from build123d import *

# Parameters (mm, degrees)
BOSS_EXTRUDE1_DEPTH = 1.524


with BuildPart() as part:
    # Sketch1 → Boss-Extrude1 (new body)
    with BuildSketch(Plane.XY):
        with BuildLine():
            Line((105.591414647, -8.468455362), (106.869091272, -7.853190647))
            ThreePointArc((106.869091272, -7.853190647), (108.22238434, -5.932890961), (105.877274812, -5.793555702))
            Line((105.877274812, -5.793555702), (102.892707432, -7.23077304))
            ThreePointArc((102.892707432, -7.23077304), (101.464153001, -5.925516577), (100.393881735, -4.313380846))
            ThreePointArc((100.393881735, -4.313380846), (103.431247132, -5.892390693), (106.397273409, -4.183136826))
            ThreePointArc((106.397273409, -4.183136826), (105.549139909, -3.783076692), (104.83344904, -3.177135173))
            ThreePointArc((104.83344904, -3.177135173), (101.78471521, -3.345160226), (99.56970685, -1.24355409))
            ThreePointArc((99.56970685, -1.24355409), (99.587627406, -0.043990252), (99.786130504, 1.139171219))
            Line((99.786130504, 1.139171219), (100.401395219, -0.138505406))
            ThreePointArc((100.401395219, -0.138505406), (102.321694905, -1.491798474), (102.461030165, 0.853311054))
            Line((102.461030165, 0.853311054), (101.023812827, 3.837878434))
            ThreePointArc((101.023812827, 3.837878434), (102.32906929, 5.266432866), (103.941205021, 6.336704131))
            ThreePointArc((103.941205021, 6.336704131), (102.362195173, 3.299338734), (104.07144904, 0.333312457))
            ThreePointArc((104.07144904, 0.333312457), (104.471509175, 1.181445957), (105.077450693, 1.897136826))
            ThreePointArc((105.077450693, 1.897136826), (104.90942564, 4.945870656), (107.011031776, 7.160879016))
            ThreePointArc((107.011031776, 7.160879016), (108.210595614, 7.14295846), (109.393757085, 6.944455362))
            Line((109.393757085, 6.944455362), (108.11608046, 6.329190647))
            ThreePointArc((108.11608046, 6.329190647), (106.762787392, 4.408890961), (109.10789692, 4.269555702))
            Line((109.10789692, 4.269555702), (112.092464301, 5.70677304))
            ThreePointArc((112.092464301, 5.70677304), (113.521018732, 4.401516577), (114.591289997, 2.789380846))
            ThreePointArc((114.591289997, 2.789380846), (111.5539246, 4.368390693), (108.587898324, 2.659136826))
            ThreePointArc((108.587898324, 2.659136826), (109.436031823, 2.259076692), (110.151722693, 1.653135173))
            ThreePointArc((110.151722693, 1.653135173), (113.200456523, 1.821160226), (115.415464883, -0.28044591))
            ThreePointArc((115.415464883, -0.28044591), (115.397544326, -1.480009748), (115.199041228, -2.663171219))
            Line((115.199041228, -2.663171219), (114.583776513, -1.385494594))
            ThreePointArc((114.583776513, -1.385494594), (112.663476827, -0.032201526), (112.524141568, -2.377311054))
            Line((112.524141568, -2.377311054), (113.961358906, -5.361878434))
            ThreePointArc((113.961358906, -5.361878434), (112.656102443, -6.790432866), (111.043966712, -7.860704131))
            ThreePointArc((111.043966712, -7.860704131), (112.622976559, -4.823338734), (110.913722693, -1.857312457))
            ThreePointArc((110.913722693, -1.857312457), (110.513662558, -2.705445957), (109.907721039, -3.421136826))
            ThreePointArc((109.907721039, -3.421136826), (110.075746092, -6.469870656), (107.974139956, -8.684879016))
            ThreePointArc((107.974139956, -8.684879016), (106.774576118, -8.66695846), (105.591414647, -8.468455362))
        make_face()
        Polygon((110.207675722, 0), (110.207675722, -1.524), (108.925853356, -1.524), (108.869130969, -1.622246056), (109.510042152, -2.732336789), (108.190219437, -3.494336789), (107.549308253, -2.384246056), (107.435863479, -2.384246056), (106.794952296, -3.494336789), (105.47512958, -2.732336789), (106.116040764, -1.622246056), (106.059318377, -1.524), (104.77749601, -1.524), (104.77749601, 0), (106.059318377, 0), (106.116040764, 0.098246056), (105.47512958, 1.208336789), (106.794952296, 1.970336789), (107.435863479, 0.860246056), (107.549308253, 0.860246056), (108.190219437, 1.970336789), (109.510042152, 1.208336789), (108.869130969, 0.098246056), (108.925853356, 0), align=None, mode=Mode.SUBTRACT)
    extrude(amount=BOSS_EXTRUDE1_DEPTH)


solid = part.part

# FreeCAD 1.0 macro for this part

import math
import FreeCAD as App
import Part
import Sketcher
from FreeCAD import Vector
Q = App.Units.Quantity

doc = App.newDocument("Part")
params = doc.addObject("Spreadsheet::Sheet", "Params")
for row, (alias, value) in enumerate([
    ("sketch1_radius", "0.3125 in"),
    ("sketch1_height", "0.06 in"),
    ("sketch1_length", "0.06 in"),
    ("pad1_length", "0.06 in"),
], start=1):
    params.set(f"A{row}", alias)
    params.set(f"B{row}", "=" + value)
    params.setAlias(f"B{row}", alias)

body = doc.addObject("PartDesign::Body", "Body")

sketch1 = doc.addObject("Sketcher::SketchObject", "Sketch")
body.addObject(sketch1)
sketch1.AttachmentSupport = (doc.XY_Plane, [""])
sketch1.MapMode = "FlatFace"
sketch1.addGeometry([
    Part.LineSegment(Vector(106.87, -7.85, 0), Vector(105.59, -8.47, 0)),
    Part.ArcOfCircle(Part.Circle(Vector(107.49, -0.76, 0), Vector(0, 0, 1), 7.94), math.radians(-103.86), math.radians(-86.52)),
    Part.ArcOfCircle(Part.Circle(Vector(106.46, -5.14, 0), Vector(0, 0, 1), 3.86), math.radians(-67), math.radians(26)),
    Part.ArcOfCircle(Part.Circle(Vector(107.49, -0.76, 0), Vector(0, 0, 1), 3.59), math.radians(-48), math.radians(-18)),
    Part.ArcOfCircle(Part.Circle(Vector(109.06, -4.9, 0), Vector(0, 0, 1), 3.56), math.radians(-56), math.radians(59)),
    Part.ArcOfCircle(Part.Circle(Vector(107.49, -0.76, 0), Vector(0, 0, 1), 7.94), math.radians(-63), math.radians(-35)),
    Part.LineSegment(Vector(113.96, -5.36, 0), Vector(112.52, -2.38, 0)),
    Part.ArcOfCircle(Part.Circle(Vector(113.25, -1.24, 0), Vector(0, 0, 1), 1.34), math.radians(-6), math.radians(237)),
    Part.LineSegment(Vector(114.58, -1.39, 0), Vector(115.2, -2.66, 0)),
    Part.ArcOfCircle(Part.Circle(Vector(107.49, -0.76, 0), Vector(0, 0, 1), 7.94), math.radians(-13.86), math.radians(3.48)),
    Part.ArcOfCircle(Part.Circle(Vector(111.87, -1.8, 0), Vector(0, 0, 1), 3.86), math.radians(23), math.radians(116)),
    Part.ArcOfCircle(Part.Circle(Vector(107.49, -0.76, 0), Vector(0, 0, 1), 3.59), math.radians(42), math.radians(72)),
    Part.ArcOfCircle(Part.Circle(Vector(111.63, 0.81, 0), Vector(0, 0, 1), 3.56), math.radians(34), math.radians(149)),
    Part.ArcOfCircle(Part.Circle(Vector(107.49, -0.76, 0), Vector(0, 0, 1), 7.94), math.radians(27), math.radians(55)),
    Part.LineSegment(Vector(112.09, 5.71, 0), Vector(109.11, 4.27, 0)),
    Part.ArcOfCircle(Part.Circle(Vector(107.97, 4.99, 0), Vector(0, 0, 1), 1.34), math.radians(84), math.radians(327)),
    Part.LineSegment(Vector(108.12, 6.33, 0), Vector(109.39, 6.94, 0)),
    Part.ArcOfCircle(Part.Circle(Vector(107.49, -0.76, 0), Vector(0, 0, 1), 7.94), math.radians(76.14), math.radians(93.48)),
    Part.ArcOfCircle(Part.Circle(Vector(108.53, 3.62, 0), Vector(0, 0, 1), 3.86), math.radians(113), math.radians(206)),
    Part.ArcOfCircle(Part.Circle(Vector(107.49, -0.76, 0), Vector(0, 0, 1), 3.59), math.radians(132), math.radians(162)),
    Part.ArcOfCircle(Part.Circle(Vector(105.92, 3.38, 0), Vector(0, 0, 1), 3.56), math.radians(124), math.radians(239)),
    Part.ArcOfCircle(Part.Circle(Vector(107.49, -0.76, 0), Vector(0, 0, 1), 7.94), math.radians(117), math.radians(145)),
    Part.LineSegment(Vector(101.02, 3.84, 0), Vector(102.46, 0.85, 0)),
    Part.ArcOfCircle(Part.Circle(Vector(101.74, -0.28, 0), Vector(0, 0, 1), 1.34), math.radians(174), math.radians(417)),
    Part.LineSegment(Vector(100.4, -0.14, 0), Vector(99.79, 1.14, 0)),
    Part.ArcOfCircle(Part.Circle(Vector(107.49, -0.76, 0), Vector(0, 0, 1), 7.94), math.radians(166.14), math.radians(183.48)),
    Part.ArcOfCircle(Part.Circle(Vector(103.11, 0.27, 0), Vector(0, 0, 1), 3.86), math.radians(-157), math.radians(-64)),
    Part.ArcOfCircle(Part.Circle(Vector(107.49, -0.76, 0), Vector(0, 0, 1), 3.59), math.radians(-138), math.radians(-108)),
    Part.ArcOfCircle(Part.Circle(Vector(103.35, -2.33, 0), Vector(0, 0, 1), 3.56), math.radians(-146), math.radians(-31)),
    Part.ArcOfCircle(Part.Circle(Vector(107.49, -0.76, 0), Vector(0, 0, 1), 7.94), math.radians(-153), math.radians(-125)),
    Part.LineSegment(Vector(102.89, -7.23, 0), Vector(105.88, -5.79, 0)),
    Part.ArcOfCircle(Part.Circle(Vector(107.01, -6.52, 0), Vector(0, 0, 1), 1.34), math.radians(-96), math.radians(147)),
    Part.LineSegment(Vector(110.21, 0, 0), Vector(110.21, -1.52, 0)),
    Part.LineSegment(Vector(110.21, -1.52, 0), Vector(108.93, -1.52, 0)),
    Part.LineSegment(Vector(108.93, -1.52, 0), Vector(108.87, -1.62, 0)),
    Part.LineSegment(Vector(108.87, -1.62, 0), Vector(109.51, -2.73, 0)),
    Part.LineSegment(Vector(109.51, -2.73, 0), Vector(108.19, -3.49, 0)),
    Part.LineSegment(Vector(108.19, -3.49, 0), Vector(107.55, -2.38, 0)),
    Part.LineSegment(Vector(107.55, -2.38, 0), Vector(107.44, -2.38, 0)),
    Part.LineSegment(Vector(107.44, -2.38, 0), Vector(106.79, -3.49, 0)),
    Part.LineSegment(Vector(106.79, -3.49, 0), Vector(105.48, -2.73, 0)),
    Part.LineSegment(Vector(105.48, -2.73, 0), Vector(106.12, -1.62, 0)),
    Part.LineSegment(Vector(106.12, -1.62, 0), Vector(106.06, -1.52, 0)),
    Part.LineSegment(Vector(106.06, -1.52, 0), Vector(104.78, -1.52, 0)),
    Part.LineSegment(Vector(104.78, -1.52, 0), Vector(104.78, 0, 0)),
    Part.LineSegment(Vector(104.78, 0, 0), Vector(106.06, 0, 0)),
    Part.LineSegment(Vector(106.06, 0, 0), Vector(106.12, 0.1, 0)),
    Part.LineSegment(Vector(106.12, 0.1, 0), Vector(105.48, 1.21, 0)),
    Part.LineSegment(Vector(105.48, 1.21, 0), Vector(106.79, 1.97, 0)),
    Part.LineSegment(Vector(106.79, 1.97, 0), Vector(107.44, 0.86, 0)),
    Part.LineSegment(Vector(107.44, 0.86, 0), Vector(107.55, 0.86, 0)),
    Part.LineSegment(Vector(107.55, 0.86, 0), Vector(108.19, 1.97, 0)),
    Part.LineSegment(Vector(108.19, 1.97, 0), Vector(109.51, 1.21, 0)),
    Part.LineSegment(Vector(109.51, 1.21, 0), Vector(108.87, 0.1, 0)),
    Part.LineSegment(Vector(108.87, 0.1, 0), Vector(108.93, 0, 0)),
    Part.LineSegment(Vector(108.93, 0, 0), Vector(110.21, 0, 0)),
], False)
sketch1.addConstraint([
    Sketcher.Constraint("Coincident", 0, 2, 1, 1),
    Sketcher.Constraint("Coincident", 1, 2, 2, 1),
    Sketcher.Constraint("Coincident", 2, 2, 3, 1),
    Sketcher.Constraint("Coincident", 3, 2, 4, 2),
    Sketcher.Constraint("Coincident", 4, 1, 5, 1),
    Sketcher.Constraint("Coincident", 5, 2, 6, 1),
    Sketcher.Constraint("Coincident", 6, 2, 7, 2),
    Sketcher.Constraint("Coincident", 7, 1, 8, 1),
    Sketcher.Constraint("Coincident", 8, 2, 9, 1),
    Sketcher.Constraint("Coincident", 9, 2, 10, 1),
    Sketcher.Constraint("Coincident", 10, 2, 11, 1),
    Sketcher.Constraint("Coincident", 11, 2, 12, 2),
    Sketcher.Constraint("Coincident", 12, 1, 13, 1),
    Sketcher.Constraint("Coincident", 13, 2, 14, 1),
    Sketcher.Constraint("Coincident", 14, 2, 15, 2),
    Sketcher.Constraint("Coincident", 15, 1, 16, 1),
    Sketcher.Constraint("Coincident", 16, 2, 17, 1),
    Sketcher.Constraint("Coincident", 17, 2, 18, 1),
    Sketcher.Constraint("Coincident", 18, 2, 19, 1),
    Sketcher.Constraint("Coincident", 19, 2, 20, 2),
    Sketcher.Constraint("Coincident", 20, 1, 21, 1),
    Sketcher.Constraint("Coincident", 21, 2, 22, 1),
    Sketcher.Constraint("Coincident", 22, 2, 23, 2),
    Sketcher.Constraint("Coincident", 23, 1, 24, 1),
    Sketcher.Constraint("Coincident", 24, 2, 25, 1),
    Sketcher.Constraint("Coincident", 25, 2, 26, 1),
    Sketcher.Constraint("Coincident", 26, 2, 27, 1),
    Sketcher.Constraint("Coincident", 27, 2, 28, 2),
    Sketcher.Constraint("Coincident", 28, 1, 29, 1),
    Sketcher.Constraint("Coincident", 29, 2, 30, 1),
    Sketcher.Constraint("Coincident", 30, 2, 31, 2),
    Sketcher.Constraint("Coincident", 31, 1, 0, 1),
    Sketcher.Constraint("Coincident", 32, 2, 33, 1),
    Sketcher.Constraint("Coincident", 33, 2, 34, 1),
    Sketcher.Constraint("Coincident", 34, 2, 35, 1),
    Sketcher.Constraint("Coincident", 35, 2, 36, 1),
    Sketcher.Constraint("Coincident", 36, 2, 37, 1),
    Sketcher.Constraint("Coincident", 37, 2, 38, 1),
    Sketcher.Constraint("Coincident", 38, 2, 39, 1),
    Sketcher.Constraint("Coincident", 39, 2, 40, 1),
    Sketcher.Constraint("Coincident", 40, 2, 41, 1),
    Sketcher.Constraint("Coincident", 41, 2, 42, 1),
    Sketcher.Constraint("Coincident", 42, 2, 43, 1),
    Sketcher.Constraint("Coincident", 43, 2, 44, 1),
    Sketcher.Constraint("Coincident", 44, 2, 45, 1),
    Sketcher.Constraint("Coincident", 45, 2, 46, 1),
    Sketcher.Constraint("Coincident", 46, 2, 47, 1),
    Sketcher.Constraint("Coincident", 47, 2, 48, 1),
    Sketcher.Constraint("Coincident", 48, 2, 49, 1),
    Sketcher.Constraint("Coincident", 49, 2, 50, 1),
    Sketcher.Constraint("Coincident", 50, 2, 51, 1),
    Sketcher.Constraint("Coincident", 51, 2, 52, 1),
    Sketcher.Constraint("Coincident", 52, 2, 53, 1),
    Sketcher.Constraint("Coincident", 53, 2, 54, 1),
    Sketcher.Constraint("Coincident", 54, 2, 55, 1),
    Sketcher.Constraint("Coincident", 55, 2, 32, 1),
    Sketcher.Constraint("Vertical", 32),
    Sketcher.Constraint("Horizontal", 33),
    Sketcher.Constraint("Horizontal", 38),
    Sketcher.Constraint("Horizontal", 43),
    Sketcher.Constraint("Vertical", 44),
    Sketcher.Constraint("Horizontal", 45),
    Sketcher.Constraint("Horizontal", 50),
    Sketcher.Constraint("Horizontal", 55),
    Sketcher.Constraint("Coincident", 3, 3, 1, 3),
    Sketcher.Constraint("Coincident", 5, 3, 1, 3),
    Sketcher.Constraint("Coincident", 9, 3, 1, 3),
    Sketcher.Constraint("Coincident", 11, 3, 1, 3),
    Sketcher.Constraint("Coincident", 13, 3, 1, 3),
    Sketcher.Constraint("Coincident", 17, 3, 1, 3),
    Sketcher.Constraint("Coincident", 19, 3, 1, 3),
    Sketcher.Constraint("Coincident", 21, 3, 1, 3),
    Sketcher.Constraint("Coincident", 25, 3, 1, 3),
    Sketcher.Constraint("Coincident", 27, 3, 1, 3),
    Sketcher.Constraint("Coincident", 29, 3, 1, 3),
    Sketcher.Constraint("Equal", 1, 5),
    Sketcher.Constraint("Equal", 5, 9),
    Sketcher.Constraint("Equal", 2, 10),
    Sketcher.Constraint("Equal", 3, 11),
    Sketcher.Constraint("Equal", 4, 12),
    Sketcher.Constraint("Equal", 9, 13),
    Sketcher.Constraint("Equal", 7, 15),
    Sketcher.Constraint("Equal", 13, 17),
    Sketcher.Constraint("Equal", 10, 18),
    Sketcher.Constraint("Equal", 11, 19),
    Sketcher.Constraint("Equal", 12, 20),
    Sketcher.Constraint("Equal", 17, 21),
    Sketcher.Constraint("Equal", 15, 23),
    Sketcher.Constraint("Equal", 21, 25),
    Sketcher.Constraint("Equal", 18, 26),
    Sketcher.Constraint("Equal", 19, 27),
    Sketcher.Constraint("Equal", 20, 28),
    Sketcher.Constraint("Equal", 25, 29),
    Sketcher.Constraint("Equal", 23, 31),
    Sketcher.Constraint("PointOnObject", 44, 2, -1),
    Sketcher.Constraint("PointOnObject", 54, 2, -1),
    Sketcher.Constraint("Perpendicular", 0, 6),
    Sketcher.Constraint("Parallel", 6, 8),
    Sketcher.Constraint("Perpendicular", 8, 14),
    Sketcher.Constraint("Parallel", 14, 16),
    Sketcher.Constraint("Perpendicular", 16, 22),
    Sketcher.Constraint("Parallel", 22, 24),
    Sketcher.Constraint("Perpendicular", 24, 30),
    Sketcher.Constraint("Perpendicular", 35, 36),
    Sketcher.Constraint("Perpendicular", 36, 37),
    Sketcher.Constraint("Parallel", 34, 39),
    Sketcher.Constraint("Perpendicular", 39, 40),
    Sketcher.Constraint("Perpendicular", 40, 41),
    Sketcher.Constraint("Parallel", 37, 42),
    Sketcher.Constraint("Parallel", 41, 46),
    Sketcher.Constraint("Parallel", 42, 47),
    Sketcher.Constraint("Perpendicular", 47, 48),
    Sketcher.Constraint("Perpendicular", 48, 49),
    Sketcher.Constraint("Parallel", 46, 51),
    Sketcher.Constraint("Perpendicular", 51, 52),
    Sketcher.Constraint("Perpendicular", 52, 53),
    Sketcher.Constraint("Parallel", 49, 54),
    Sketcher.Constraint("Horizontal", 23, 3, 9, 2),
    Sketcher.Constraint("Horizontal", 7, 3, 25, 2),
    Sketcher.Constraint("Horizontal", 36, 2, 39, 2),
    Sketcher.Constraint("Horizontal", 35, 2, 40, 2),
    Sketcher.Constraint("Horizontal", 34, 2, 41, 2),
    Sketcher.Constraint("Horizontal", 33, 2, 42, 2),
    Sketcher.Constraint("Horizontal", 48, 2, 51, 2),
    Sketcher.Constraint("Horizontal", 47, 2, 52, 2),
    Sketcher.Constraint("Horizontal", 46, 2, 53, 2),
    Sketcher.Constraint("Vertical", 15, 3, 1, 2),
    Sketcher.Constraint("Vertical", 31, 3, 17, 2),
    Sketcher.Constraint("Vertical", 42, 2, 45, 2),
    Sketcher.Constraint("Vertical", 41, 2, 46, 2),
    Sketcher.Constraint("Vertical", 40, 2, 47, 2),
    Sketcher.Constraint("Vertical", 39, 2, 48, 2),
    Sketcher.Constraint("Vertical", 38, 2, 49, 2),
    Sketcher.Constraint("Vertical", 37, 2, 50, 2),
    Sketcher.Constraint("Vertical", 36, 2, 51, 2),
    Sketcher.Constraint("Equal", 33, 43),
    Sketcher.Constraint("Equal", 0, 8),
    Sketcher.Constraint("Equal", 6, 14),
    Sketcher.Constraint("Equal", 8, 16),
    Sketcher.Constraint("Equal", 14, 22),
    Sketcher.Constraint("Equal", 16, 24),
    Sketcher.Constraint("Equal", 22, 30),
    Sketcher.Constraint("Equal", 35, 37),
    Sketcher.Constraint("Angle", 34, Q("-120 deg")),
    Sketcher.Constraint("Radius", 1, Q("0.3125 in")),
    Sketcher.Constraint("DistanceY", 32, 2, 32, 1, Q("0.06 in")),
    Sketcher.Constraint("Distance", 36, Q("0.06 in")),
    Sketcher.Constraint("DistanceY", 1, 3, -1, 1, Q("0.03 in")),
    Sketcher.Constraint("Radius", 3, Q("3.592198 mm")),
    Sketcher.Constraint("Radius", 2, Q("3.855802 mm")),
    Sketcher.Constraint("Radius", 4, Q("3.563006 mm")),
    Sketcher.Constraint("Radius", 7, Q("1.344487 mm")),
    Sketcher.Constraint("Distance", 0, Q("1.4181 mm")),
    Sketcher.Constraint("DistanceX", -1, 1, 11, 2, Q("108.587898 mm")),
    Sketcher.Constraint("DistanceX", 33, 2, 33, 1, Q("1.281822 mm")),
    Sketcher.Constraint("DistanceX", 38, 2, 38, 1, Q("0.113445 mm")),
    Sketcher.Constraint("DistanceX", -1, 1, 4, 3, Q("109.060809 mm")),
    Sketcher.Constraint("DistanceY", 4, 3, -1, 1, Q("4.90062 mm")),
    Sketcher.Constraint("DistanceX", -1, 1, 10, 3, Q("111.870932 mm")),
    Sketcher.Constraint("DistanceX", -1, 1, 15, 3, Q("107.97414 mm")),
    Sketcher.Constraint("DistanceX", -1, 1, 18, 3, Q("108.528759 mm")),
    Sketcher.Constraint("DistanceY", -1, 1, 20, 3, Q("3.37662 mm")),
    Sketcher.Constraint("DistanceX", -1, 1, 23, 3, Q("101.738369 mm")),
    Sketcher.Constraint("DistanceX", -1, 1, 26, 3, Q("103.11424 mm")),
    Sketcher.Constraint("DistanceX", -1, 1, 31, 3, Q("107.011032 mm")),
    Sketcher.Constraint("DistanceY", 1, 2, -1, 1, Q("8.684879 mm")),
    Sketcher.Constraint("DistanceX", -1, 1, 2, 2, Q("109.907721 mm")),
    Sketcher.Constraint("DistanceX", -1, 1, 5, 2, Q("113.961359 mm")),
    Sketcher.Constraint("DistanceX", -1, 1, 6, 2, Q("112.524142 mm")),
    Sketcher.Constraint("DistanceY", 6, 2, -1, 1, Q("2.377311 mm")),
    Sketcher.Constraint("DistanceX", -1, 1, 8, 2, Q("115.199041 mm")),
    Sketcher.Constraint("DistanceX", -1, 1, 12, 1, Q("114.59129 mm")),
    Sketcher.Constraint("DistanceX", -1, 1, 15, 1, Q("108.11608 mm")),
    Sketcher.Constraint("DistanceX", -1, 1, 19, 2, Q("104.071449 mm")),
    Sketcher.Constraint("DistanceY", -1, 1, 21, 2, Q("3.837878 mm")),
    Sketcher.Constraint("DistanceX", -1, 1, 28, 1, Q("100.393882 mm")),
    Sketcher.Constraint("DistanceX", -1, 1, 31, 1, Q("106.869091 mm")),
    Sketcher.Constraint("DistanceX", -1, 1, 34, 2, Q("108.869131 mm")),
    Sketcher.Constraint("DistanceX", -1, 1, 36, 2, Q("108.190219 mm")),
    Sketcher.Constraint("DistanceX", -1, 1, 42, 2, Q("106.059318 mm")),
    Sketcher.Constraint("DistanceX", -1, 1, 28, 3, Q("103.353966 mm")),
])
sketch1.setExpression("Constraints[144]", "Params.sketch1_radius")
sketch1.setExpression("Constraints[145]", "Params.sketch1_height")
sketch1.setExpression("Constraints[146]", "Params.sketch1_length")
pad1 = doc.addObject("PartDesign::Pad", "Pad")
body.addObject(pad1)
pad1.Profile = sketch1
pad1.setExpression("Length", "Params.pad1_length")

doc.recompute()
